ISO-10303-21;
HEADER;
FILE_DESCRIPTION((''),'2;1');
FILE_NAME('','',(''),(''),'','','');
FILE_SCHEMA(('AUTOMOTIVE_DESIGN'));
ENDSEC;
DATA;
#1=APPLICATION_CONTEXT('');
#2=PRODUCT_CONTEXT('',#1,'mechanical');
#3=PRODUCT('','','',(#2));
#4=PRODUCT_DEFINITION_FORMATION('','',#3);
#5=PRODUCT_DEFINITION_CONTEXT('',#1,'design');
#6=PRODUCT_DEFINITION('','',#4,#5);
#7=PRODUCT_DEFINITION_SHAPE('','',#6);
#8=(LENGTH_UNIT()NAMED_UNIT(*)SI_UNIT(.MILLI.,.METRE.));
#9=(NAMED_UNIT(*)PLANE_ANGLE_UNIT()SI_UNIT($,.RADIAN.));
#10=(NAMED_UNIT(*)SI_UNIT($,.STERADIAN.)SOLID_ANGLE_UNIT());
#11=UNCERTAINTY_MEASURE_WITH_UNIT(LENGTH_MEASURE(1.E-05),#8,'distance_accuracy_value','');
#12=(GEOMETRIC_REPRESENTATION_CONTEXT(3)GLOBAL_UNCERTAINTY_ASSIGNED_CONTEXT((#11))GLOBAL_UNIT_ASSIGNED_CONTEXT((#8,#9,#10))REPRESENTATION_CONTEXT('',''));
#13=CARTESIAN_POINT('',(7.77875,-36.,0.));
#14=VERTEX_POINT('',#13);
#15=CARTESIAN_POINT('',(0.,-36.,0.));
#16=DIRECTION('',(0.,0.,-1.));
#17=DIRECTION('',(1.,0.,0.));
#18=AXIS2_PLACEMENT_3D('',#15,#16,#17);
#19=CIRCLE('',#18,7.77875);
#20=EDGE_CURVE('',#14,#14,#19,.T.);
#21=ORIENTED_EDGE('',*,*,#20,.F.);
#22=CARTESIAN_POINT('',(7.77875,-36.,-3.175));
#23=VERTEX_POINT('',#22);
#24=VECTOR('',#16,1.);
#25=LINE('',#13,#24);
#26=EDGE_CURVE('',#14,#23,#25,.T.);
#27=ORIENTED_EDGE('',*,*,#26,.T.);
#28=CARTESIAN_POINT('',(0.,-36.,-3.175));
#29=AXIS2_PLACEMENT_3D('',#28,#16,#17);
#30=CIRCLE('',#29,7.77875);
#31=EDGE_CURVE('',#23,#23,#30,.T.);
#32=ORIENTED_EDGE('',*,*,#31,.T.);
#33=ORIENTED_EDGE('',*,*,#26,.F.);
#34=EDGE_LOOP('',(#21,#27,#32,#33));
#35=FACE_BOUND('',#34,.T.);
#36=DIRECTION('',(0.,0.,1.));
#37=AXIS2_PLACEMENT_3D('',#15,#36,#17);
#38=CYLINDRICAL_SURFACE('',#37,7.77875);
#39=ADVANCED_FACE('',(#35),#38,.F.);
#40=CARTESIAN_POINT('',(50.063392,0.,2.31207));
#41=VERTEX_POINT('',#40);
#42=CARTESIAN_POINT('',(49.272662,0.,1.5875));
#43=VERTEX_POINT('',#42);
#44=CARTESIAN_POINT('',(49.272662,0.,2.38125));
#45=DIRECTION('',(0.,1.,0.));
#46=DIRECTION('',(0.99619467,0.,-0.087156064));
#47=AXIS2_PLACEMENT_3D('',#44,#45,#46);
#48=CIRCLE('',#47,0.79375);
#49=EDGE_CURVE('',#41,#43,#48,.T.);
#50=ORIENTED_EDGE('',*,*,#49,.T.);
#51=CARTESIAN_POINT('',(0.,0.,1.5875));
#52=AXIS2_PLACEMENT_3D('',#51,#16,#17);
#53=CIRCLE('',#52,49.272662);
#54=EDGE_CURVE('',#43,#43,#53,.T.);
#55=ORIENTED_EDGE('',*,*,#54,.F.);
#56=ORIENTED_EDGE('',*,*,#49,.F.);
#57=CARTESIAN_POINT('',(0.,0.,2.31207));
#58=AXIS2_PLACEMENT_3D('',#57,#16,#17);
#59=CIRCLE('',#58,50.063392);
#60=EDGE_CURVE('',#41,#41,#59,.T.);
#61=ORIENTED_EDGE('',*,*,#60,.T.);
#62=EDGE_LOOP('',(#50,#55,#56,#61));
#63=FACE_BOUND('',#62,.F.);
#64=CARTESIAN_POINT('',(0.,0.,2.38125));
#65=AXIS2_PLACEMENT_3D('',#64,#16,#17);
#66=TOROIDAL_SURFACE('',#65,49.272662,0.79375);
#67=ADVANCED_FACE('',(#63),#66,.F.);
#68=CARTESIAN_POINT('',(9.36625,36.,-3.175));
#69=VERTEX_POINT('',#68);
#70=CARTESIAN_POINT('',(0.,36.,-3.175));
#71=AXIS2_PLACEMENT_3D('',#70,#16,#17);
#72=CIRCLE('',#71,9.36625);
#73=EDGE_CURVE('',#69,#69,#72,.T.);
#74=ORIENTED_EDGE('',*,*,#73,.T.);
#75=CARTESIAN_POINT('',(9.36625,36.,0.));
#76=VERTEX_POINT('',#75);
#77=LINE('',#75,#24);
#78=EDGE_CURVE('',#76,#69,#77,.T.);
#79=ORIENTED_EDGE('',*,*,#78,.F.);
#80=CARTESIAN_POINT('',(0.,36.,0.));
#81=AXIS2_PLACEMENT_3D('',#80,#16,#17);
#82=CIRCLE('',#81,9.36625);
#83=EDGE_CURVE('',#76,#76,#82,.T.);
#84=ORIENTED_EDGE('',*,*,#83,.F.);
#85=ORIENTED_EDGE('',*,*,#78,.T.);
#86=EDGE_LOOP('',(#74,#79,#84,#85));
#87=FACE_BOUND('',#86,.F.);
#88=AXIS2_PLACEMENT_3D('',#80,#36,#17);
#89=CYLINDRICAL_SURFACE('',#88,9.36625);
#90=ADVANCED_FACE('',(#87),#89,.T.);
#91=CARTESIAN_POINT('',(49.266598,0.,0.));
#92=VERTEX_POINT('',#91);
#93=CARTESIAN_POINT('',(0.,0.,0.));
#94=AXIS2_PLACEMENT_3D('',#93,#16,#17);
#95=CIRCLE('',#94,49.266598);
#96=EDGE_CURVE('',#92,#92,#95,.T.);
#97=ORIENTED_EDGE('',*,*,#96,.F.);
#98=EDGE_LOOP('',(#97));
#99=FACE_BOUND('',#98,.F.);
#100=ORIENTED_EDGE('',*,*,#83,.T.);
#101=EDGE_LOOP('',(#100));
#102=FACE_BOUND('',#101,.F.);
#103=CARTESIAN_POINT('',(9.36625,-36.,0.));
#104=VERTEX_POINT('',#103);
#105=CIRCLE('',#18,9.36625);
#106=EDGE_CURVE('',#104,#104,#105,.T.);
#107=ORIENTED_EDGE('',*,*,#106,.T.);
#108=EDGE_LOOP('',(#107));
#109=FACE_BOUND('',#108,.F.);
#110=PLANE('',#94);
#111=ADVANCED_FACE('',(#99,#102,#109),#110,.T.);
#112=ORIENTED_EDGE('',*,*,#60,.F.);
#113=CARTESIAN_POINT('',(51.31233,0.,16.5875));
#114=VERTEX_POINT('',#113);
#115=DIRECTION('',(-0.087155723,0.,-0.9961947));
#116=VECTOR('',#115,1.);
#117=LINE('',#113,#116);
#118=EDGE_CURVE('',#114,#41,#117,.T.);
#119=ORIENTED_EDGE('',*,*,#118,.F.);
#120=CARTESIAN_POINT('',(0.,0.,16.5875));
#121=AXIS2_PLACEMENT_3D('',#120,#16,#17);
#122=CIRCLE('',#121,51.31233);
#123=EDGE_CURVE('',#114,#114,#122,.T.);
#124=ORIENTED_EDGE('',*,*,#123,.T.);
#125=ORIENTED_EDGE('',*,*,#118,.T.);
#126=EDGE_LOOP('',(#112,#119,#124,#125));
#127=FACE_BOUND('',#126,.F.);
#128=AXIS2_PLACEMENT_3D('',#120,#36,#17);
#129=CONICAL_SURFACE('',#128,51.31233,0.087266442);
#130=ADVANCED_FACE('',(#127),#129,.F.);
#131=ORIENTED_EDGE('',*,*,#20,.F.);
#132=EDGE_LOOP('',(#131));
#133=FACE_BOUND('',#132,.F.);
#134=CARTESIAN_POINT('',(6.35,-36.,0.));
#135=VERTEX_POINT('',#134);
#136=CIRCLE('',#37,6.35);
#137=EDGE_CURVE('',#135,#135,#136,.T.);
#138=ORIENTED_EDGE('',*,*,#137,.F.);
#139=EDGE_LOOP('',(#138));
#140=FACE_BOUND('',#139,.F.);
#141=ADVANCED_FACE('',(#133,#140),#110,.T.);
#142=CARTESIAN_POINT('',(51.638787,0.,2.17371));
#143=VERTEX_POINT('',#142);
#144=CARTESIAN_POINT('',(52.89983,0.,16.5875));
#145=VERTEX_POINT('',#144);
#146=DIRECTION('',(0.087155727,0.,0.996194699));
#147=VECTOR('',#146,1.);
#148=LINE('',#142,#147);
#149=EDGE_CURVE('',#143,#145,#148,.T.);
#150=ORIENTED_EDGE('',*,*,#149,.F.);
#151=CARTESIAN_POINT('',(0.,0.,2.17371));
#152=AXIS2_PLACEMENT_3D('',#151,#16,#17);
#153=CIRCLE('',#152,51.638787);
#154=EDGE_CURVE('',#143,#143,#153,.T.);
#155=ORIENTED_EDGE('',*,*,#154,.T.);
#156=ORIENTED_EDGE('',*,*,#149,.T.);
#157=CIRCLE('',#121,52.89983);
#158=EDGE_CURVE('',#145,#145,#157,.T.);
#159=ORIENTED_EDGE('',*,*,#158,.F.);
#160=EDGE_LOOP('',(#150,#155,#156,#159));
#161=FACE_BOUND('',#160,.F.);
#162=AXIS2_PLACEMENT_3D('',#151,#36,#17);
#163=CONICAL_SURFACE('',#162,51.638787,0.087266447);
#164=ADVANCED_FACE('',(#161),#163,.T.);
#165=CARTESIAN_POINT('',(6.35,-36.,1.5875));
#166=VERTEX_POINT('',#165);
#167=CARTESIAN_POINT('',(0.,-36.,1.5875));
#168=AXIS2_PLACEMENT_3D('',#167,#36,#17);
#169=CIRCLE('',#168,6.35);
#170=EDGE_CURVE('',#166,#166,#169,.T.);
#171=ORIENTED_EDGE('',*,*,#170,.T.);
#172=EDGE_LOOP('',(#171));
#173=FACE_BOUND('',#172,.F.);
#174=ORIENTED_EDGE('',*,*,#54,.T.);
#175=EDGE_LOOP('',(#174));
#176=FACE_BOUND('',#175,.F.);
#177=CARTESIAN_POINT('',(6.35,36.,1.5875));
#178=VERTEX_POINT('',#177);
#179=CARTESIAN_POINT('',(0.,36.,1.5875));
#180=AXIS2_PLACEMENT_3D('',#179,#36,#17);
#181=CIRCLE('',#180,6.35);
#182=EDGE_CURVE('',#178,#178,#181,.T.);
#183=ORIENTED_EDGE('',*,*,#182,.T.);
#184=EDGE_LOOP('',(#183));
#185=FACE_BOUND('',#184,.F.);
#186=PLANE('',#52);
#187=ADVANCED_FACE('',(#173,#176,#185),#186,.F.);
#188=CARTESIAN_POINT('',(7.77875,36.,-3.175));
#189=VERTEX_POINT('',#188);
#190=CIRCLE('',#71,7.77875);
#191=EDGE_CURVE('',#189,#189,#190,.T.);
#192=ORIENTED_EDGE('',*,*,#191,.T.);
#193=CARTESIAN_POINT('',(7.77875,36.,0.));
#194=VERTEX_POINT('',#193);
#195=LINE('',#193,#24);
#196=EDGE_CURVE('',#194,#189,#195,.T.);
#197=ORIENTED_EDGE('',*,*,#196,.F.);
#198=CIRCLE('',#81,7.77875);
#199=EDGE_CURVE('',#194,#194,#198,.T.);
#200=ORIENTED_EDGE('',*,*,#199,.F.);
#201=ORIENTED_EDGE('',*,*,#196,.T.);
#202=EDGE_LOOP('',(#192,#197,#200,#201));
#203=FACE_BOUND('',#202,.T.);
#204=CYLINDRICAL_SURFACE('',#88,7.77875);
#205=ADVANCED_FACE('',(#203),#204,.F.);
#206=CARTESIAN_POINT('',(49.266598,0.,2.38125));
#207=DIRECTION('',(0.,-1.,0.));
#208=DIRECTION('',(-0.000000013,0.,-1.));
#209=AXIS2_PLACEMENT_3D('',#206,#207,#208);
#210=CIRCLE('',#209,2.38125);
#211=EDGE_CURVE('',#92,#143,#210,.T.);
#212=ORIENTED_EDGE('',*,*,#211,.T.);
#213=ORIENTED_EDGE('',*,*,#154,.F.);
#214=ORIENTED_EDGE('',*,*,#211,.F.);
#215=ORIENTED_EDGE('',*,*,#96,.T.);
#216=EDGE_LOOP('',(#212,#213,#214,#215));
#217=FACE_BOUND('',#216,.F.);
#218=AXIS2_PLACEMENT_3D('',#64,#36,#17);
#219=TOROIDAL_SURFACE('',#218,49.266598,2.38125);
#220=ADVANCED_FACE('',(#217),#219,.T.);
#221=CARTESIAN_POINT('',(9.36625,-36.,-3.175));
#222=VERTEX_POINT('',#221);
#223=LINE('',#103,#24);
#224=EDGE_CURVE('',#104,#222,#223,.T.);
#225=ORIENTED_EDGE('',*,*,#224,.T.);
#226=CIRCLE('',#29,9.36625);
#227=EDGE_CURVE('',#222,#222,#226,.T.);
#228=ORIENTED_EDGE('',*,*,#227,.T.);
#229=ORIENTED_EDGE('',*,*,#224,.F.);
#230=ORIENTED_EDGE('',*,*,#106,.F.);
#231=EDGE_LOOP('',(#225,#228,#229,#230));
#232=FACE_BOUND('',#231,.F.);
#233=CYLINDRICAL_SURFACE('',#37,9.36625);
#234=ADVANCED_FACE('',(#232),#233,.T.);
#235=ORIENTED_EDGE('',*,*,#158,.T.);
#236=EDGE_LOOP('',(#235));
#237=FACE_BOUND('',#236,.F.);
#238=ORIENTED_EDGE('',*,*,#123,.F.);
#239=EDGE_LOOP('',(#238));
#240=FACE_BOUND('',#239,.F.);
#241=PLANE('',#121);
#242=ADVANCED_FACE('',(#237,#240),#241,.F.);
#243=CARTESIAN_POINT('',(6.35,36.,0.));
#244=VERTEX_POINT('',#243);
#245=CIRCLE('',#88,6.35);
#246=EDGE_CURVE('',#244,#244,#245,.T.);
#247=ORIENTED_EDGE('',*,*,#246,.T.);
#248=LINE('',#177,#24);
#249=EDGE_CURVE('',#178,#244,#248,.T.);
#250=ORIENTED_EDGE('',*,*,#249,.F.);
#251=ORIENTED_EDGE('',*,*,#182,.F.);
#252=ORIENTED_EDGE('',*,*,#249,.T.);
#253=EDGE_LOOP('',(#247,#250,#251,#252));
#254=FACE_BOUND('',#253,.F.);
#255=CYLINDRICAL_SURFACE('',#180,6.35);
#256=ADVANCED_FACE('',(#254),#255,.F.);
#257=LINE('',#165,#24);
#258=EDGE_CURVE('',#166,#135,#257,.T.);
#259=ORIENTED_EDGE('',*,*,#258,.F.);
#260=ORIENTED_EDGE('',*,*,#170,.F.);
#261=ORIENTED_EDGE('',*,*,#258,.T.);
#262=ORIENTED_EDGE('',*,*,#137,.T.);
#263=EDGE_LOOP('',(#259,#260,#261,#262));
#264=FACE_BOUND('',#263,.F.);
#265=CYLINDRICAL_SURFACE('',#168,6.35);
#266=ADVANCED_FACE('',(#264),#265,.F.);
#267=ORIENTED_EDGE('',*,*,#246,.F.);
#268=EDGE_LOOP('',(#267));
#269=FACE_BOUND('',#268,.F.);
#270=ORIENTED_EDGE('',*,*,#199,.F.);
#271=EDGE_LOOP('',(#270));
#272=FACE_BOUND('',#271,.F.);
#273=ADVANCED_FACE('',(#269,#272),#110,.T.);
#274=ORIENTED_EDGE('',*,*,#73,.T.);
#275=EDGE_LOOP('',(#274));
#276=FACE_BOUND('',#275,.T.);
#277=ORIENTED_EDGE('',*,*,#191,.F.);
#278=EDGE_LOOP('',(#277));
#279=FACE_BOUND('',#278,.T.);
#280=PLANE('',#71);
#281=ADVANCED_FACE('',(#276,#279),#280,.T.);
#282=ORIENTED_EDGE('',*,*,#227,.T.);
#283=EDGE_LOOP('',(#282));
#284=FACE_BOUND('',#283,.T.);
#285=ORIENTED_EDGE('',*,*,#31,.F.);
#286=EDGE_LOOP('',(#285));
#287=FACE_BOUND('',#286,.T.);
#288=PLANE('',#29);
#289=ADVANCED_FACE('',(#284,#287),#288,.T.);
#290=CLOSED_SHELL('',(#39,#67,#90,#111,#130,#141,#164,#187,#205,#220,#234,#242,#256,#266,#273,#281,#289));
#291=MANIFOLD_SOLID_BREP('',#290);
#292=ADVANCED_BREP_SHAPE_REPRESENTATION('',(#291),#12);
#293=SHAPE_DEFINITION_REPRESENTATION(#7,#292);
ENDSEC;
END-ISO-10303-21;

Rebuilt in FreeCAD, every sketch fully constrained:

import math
import FreeCAD as App
import Part
import Sketcher
from FreeCAD import Vector
Q = App.Units.Quantity

doc = App.newDocument("Part")
body = doc.addObject("PartDesign::Body", "Body")

sketch1 = doc.addObject("Sketcher::SketchObject", "Sketch")
body.addObject(sketch1)
sketch1.AttachmentSupport = (doc.XZ_Plane, [""])
sketch1.MapMode = "FlatFace"
sketch1.addGeometry([
    Part.LineSegment(Vector(0, 1.6, 0), Vector(0, 0, 0)),
    Part.LineSegment(Vector(0, 0, 0), Vector(49.3, 0, 0)),
    Part.ArcOfCircle(Part.Circle(Vector(49.3, 2.4, 0), Vector(0, 0, 1), 2.4), math.radians(-90), math.radians(-5)),
    Part.LineSegment(Vector(51.6, 2.2, 0), Vector(52.9, 16.6, 0)),
    Part.LineSegment(Vector(52.9, 16.6, 0), Vector(51.3, 16.6, 0)),
    Part.LineSegment(Vector(51.3, 16.6, 0), Vector(50.1, 2.3, 0)),
    Part.ArcOfCircle(Part.Circle(Vector(49.3, 2.4, 0), Vector(0, 0, 1), 0.8), math.radians(-90), math.radians(-5)),
    Part.LineSegment(Vector(49.3, 1.6, 0), Vector(0, 1.6, 0)),
], False)
sketch1.addConstraint([
    Sketcher.Constraint("Coincident", 0, 2, 1, 1),
    Sketcher.Constraint("Tangent", 1, 2, 2, 1),
    Sketcher.Constraint("Tangent", 2, 2, 3, 1),
    Sketcher.Constraint("Coincident", 3, 2, 4, 1),
    Sketcher.Constraint("Coincident", 4, 2, 5, 1),
    Sketcher.Constraint("Tangent", 5, 2, 6, 2),
    Sketcher.Constraint("Tangent", 6, 1, 7, 1),
    Sketcher.Constraint("Coincident", 7, 2, 0, 1),
    Sketcher.Constraint("Vertical", 0),
    Sketcher.Constraint("Horizontal", 1),
    Sketcher.Constraint("Horizontal", 4),
    Sketcher.Constraint("Horizontal", 7),
    Sketcher.Constraint("Coincident", 0, 2, -1, 1),
    Sketcher.Constraint("Parallel", 3, 5),
    Sketcher.Constraint("Horizontal", 2, 3, 6, 3),
    Sketcher.Constraint("Equal", 4, 0),
    Sketcher.Constraint("Angle", 3, Q("85.000001 deg")),
    Sketcher.Constraint("Radius", 2, Q("0.09375 in")),
    Sketcher.Constraint("Radius", 6, Q("0.03125 in")),
    Sketcher.Constraint("DistanceX", 1, 1, 1, 2, Q("49.266598 mm")),
    Sketcher.Constraint("DistanceY", -1, 1, 3, 2, Q("16.5875 mm")),
])
revolution = doc.addObject("PartDesign::Revolution", "Revolution")
body.addObject(revolution)
revolution.Profile = sketch1
revolution.ReferenceAxis = (sketch1, ["V_Axis"])
revolution.Angle = 360

sketch2 = doc.addObject("Sketcher::SketchObject", "Sketch001")
body.addObject(sketch2)
sketch2.AttachmentSupport = (doc.XY_Plane, [""])
sketch2.MapMode = "FlatFace"
sketch2.AttachmentOffset = App.Placement(Vector(0, 0, 0.0625 * 25.4), App.Rotation())
sketch2.addGeometry([
    Part.Circle(Vector(0, 36, 0), Vector(0, 0, 1), 6),
    Part.Circle(Vector(0, -36, 0), Vector(0, 0, 1), 6),
], False)
sketch2.addConstraint([
    Sketcher.Constraint("Equal", 0, 1),
    Sketcher.Constraint("Symmetric", 0, 3, 1, 3, -1, 1),
    Sketcher.Constraint("PointOnObject", 0, 3, -2),
    Sketcher.Constraint("Diameter", 0, Q("0.5 in")),
    Sketcher.Constraint("DistanceY", -1, 1, 0, 3, Q("36 mm")),
])
pocket1 = doc.addObject("PartDesign::Pocket", "Pocket")
body.addObject(pocket1)
pocket1.Profile = sketch2
pocket1.Type = "ThroughAll"

sketch3 = doc.addObject("Sketcher::SketchObject", "Sketch002")
body.addObject(sketch3)
sketch3.AttachmentSupport = (doc.XY_Plane, [""])
sketch3.MapMode = "FlatFace"
sketch3.addGeometry([
    Part.Circle(Vector(0, 36, 0), Vector(0, 0, 1), 9),
    Part.Circle(Vector(0, 36, 0), Vector(0, 0, 1), 8),
    Part.Circle(Vector(0, -36, 0), Vector(0, 0, 1), 9),
    Part.Circle(Vector(0, -36, 0), Vector(0, 0, 1), 8),
], False)
sketch3.addConstraint([
    Sketcher.Constraint("Coincident", 1, 3, 0, 3),
    Sketcher.Constraint("Coincident", 3, 3, 2, 3),
    Sketcher.Constraint("Equal", 0, 2),
    Sketcher.Constraint("Equal", 1, 3),
    Sketcher.Constraint("Symmetric", 0, 3, 2, 3, -1, 1),
    Sketcher.Constraint("PointOnObject", 0, 3, -2),
    Sketcher.Constraint("Diameter", 0, Q("0.7375 in")),
    Sketcher.Constraint("Diameter", 1, Q("0.6125 in")),
    Sketcher.Constraint("DistanceY", -1, 1, 0, 3, Q("36 mm")),
])
pad1 = doc.addObject("PartDesign::Pad", "Pad")
body.addObject(pad1)
pad1.Profile = sketch3
pad1.Length = Q("0.125 in")
pad1.Reversed = True

doc.recompute()
